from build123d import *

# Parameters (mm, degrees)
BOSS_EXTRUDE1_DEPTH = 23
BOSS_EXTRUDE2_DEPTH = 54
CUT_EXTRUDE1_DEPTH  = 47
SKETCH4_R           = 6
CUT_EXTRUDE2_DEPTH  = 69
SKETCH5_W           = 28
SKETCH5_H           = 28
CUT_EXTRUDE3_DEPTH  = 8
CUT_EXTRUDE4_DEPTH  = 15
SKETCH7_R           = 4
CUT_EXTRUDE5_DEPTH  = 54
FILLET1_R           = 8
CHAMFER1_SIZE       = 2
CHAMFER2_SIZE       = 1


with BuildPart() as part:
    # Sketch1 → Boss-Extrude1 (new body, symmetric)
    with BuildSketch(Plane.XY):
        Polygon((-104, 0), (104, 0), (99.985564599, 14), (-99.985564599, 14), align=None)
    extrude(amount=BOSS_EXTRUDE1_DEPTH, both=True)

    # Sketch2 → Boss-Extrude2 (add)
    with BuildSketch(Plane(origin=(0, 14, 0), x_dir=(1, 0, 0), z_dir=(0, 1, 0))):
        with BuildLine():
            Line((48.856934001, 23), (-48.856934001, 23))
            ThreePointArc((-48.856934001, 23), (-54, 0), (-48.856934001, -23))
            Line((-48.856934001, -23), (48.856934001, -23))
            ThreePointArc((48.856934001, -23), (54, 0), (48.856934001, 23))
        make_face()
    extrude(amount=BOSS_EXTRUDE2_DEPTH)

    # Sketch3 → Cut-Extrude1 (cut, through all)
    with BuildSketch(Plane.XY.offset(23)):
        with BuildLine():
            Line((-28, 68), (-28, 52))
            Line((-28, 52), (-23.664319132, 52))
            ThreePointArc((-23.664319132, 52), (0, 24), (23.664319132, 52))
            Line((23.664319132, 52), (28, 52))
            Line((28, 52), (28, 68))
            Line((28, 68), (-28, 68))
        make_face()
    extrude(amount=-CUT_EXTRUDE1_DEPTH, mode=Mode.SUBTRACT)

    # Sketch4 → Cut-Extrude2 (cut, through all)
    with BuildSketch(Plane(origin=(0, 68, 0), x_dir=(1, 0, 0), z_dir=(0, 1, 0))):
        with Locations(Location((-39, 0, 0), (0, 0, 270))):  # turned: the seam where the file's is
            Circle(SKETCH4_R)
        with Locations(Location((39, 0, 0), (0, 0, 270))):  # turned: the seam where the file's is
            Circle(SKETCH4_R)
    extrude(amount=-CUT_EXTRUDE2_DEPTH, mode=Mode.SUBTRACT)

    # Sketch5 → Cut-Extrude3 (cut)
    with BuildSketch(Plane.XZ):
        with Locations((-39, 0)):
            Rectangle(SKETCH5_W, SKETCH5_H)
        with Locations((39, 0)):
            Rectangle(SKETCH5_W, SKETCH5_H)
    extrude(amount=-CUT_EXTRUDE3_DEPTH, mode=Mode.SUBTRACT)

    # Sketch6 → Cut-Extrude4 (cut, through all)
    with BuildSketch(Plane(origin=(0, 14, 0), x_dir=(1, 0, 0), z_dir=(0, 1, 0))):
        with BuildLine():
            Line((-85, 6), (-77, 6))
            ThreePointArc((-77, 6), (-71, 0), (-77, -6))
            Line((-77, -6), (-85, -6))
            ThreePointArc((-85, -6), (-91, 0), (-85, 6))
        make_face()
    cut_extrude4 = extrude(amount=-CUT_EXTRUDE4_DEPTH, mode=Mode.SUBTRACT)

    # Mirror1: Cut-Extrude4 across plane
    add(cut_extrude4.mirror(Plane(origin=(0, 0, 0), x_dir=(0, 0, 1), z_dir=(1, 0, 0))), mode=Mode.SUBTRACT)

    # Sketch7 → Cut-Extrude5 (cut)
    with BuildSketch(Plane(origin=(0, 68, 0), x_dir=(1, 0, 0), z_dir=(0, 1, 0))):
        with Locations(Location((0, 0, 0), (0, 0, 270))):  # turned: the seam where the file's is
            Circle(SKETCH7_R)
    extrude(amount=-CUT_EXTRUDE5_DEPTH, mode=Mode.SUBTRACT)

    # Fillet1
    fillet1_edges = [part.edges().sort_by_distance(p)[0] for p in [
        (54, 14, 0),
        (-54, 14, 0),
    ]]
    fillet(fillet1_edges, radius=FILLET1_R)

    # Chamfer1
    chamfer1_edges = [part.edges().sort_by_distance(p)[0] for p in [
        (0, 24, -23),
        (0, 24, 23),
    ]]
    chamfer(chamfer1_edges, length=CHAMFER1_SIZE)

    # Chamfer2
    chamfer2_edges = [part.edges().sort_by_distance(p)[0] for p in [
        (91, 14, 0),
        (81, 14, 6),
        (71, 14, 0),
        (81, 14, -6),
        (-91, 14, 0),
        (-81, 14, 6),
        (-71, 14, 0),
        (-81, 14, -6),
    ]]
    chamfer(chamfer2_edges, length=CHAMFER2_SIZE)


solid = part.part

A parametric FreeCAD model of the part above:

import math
import FreeCAD as App
import Part
import Sketcher
Q = App.Units.Quantity


def edges_at(feature, points):
    """Names of the edges that pass closest to the given points."""
    edges = feature.Shape.Edges
    near = lambda p: min(range(len(edges)), key=lambda i: edges[i].distToShape(Part.Vertex(*p))[0])
    return sorted({f"Edge{near(p) + 1}" for p in points})


def add_polygon(sketch, points):
    """Adds a closed chain of lines whose ends are joined by coincident constraints."""
    first, n = sketch.GeometryCount, len(points)
    for a, b in zip(points, points[1:] + points[:1]):
        sketch.addGeometry(Part.LineSegment(App.Vector(*a, 0), App.Vector(*b, 0)), False)
    for i in range(n):
        sketch.addConstraint(Sketcher.Constraint("Coincident", first + i, 2, first + (i + 1) % n, 1))

doc = App.newDocument("Part")
params = doc.addObject("Spreadsheet::Sheet", "Params")
for row, (alias, value) in enumerate([
    ("sketch1_width", "208 mm"),
    ("pad1_length", "46 mm"),
    ("sketch2_radius", "54 mm"),
    ("pad2_length", "54 mm"),
    ("sketch3_radius", "24 mm"),
    ("sketch3_width", "56 mm"),
    ("sketch3_height", "16 mm"),
    ("sketch4_diameter", "12 mm"),
    ("sketch5_width", "28 mm"),
    ("pocket3_length", "8 mm"),
    ("sketch6_radius", "6 mm"),
    ("sketch6_width", "8 mm"),
    ("sketch7_diameter", "8 mm"),
    ("pocket5_length", "54 mm"),
    ("fillet_radius", "8 mm"),
    ("chamfer_size", "2 mm"),
    ("chamfer2_size", "1 mm"),
], start=1):
    params.set(f"A{row}", alias)
    params.set(f"B{row}", "=" + value)
    params.setAlias(f"B{row}", alias)

body = doc.addObject("PartDesign::Body", "Body")

sketch1 = body.newObject("Sketcher::SketchObject", "Sketch")
sketch1.AttachmentSupport = (doc.getObject("XY_Plane"), [""])
sketch1.MapMode = "FlatFace"
add_polygon(sketch1, [(-104, 0), (104, 0), (100, 14), (-100, 14)])
sketch1.addConstraint(Sketcher.Constraint("Horizontal", 0))
sketch1.addConstraint(Sketcher.Constraint("Horizontal", 2))
sketch1.addConstraint(Sketcher.Constraint("Symmetric", 0, 2, 3, 2, -1, 1))
sketch1.addConstraint(Sketcher.Constraint("Equal", 1, 3))
sketch1.addConstraint(Sketcher.Constraint("DistanceX", 0, 1, 0, 2, Q("208 mm")))
sketch1.addConstraint(Sketcher.Constraint("Angle", 1, Q("106 deg")))
sketch1.addConstraint(Sketcher.Constraint("DistanceY", -1, 1, 1, 2, Q("14 mm")))
sketch1.setExpression("Constraints[8]", "Params.sketch1_width")
pad1 = body.newObject("PartDesign::Pad", "Pad")
pad1.Profile = sketch1
pad1.setExpression("Length", "Params.pad1_length")
pad1.Midplane = True

sketch2 = body.newObject("Sketcher::SketchObject", "Sketch001")
sketch2.AttachmentSupport = (doc.getObject("XZ_Plane"), [""])
sketch2.MapMode = "FlatFace"
sketch2.AttachmentOffset = App.Placement(App.Vector(0, 0, -14), App.Rotation())
sketch2.addGeometry(Part.LineSegment(App.Vector(49, -23, 0), App.Vector(-49, -23, 0)), False)
sketch2.addGeometry(Part.ArcOfCircle(Part.Circle(App.Vector(0, 0, 0), App.Vector(0, 0, 1), 54), math.radians(155), math.radians(205)), False)
sketch2.addGeometry(Part.LineSegment(App.Vector(-49, 23, 0), App.Vector(49, 23, 0)), False)
sketch2.addGeometry(Part.ArcOfCircle(Part.Circle(App.Vector(0, 0, 0), App.Vector(0, 0, 1), 54), math.radians(-25), math.radians(25)), False)
sketch2.addConstraint(Sketcher.Constraint("Coincident", 0, 2, 1, 2))
sketch2.addConstraint(Sketcher.Constraint("Coincident", 1, 1, 2, 1))
sketch2.addConstraint(Sketcher.Constraint("Coincident", 2, 2, 3, 2))
sketch2.addConstraint(Sketcher.Constraint("Coincident", 3, 1, 0, 1))
sketch2.addConstraint(Sketcher.Constraint("Horizontal", 0))
sketch2.addConstraint(Sketcher.Constraint("Horizontal", 2))
sketch2.addConstraint(Sketcher.Constraint("Coincident", 1, 3, -1, 1))
sketch2.addConstraint(Sketcher.Constraint("Coincident", 3, 3, -1, 1))
sketch2.addConstraint(Sketcher.Constraint("Equal", 1, 3))
sketch2.addConstraint(Sketcher.Constraint("Vertical", 0, 2, 1, 1))
sketch2.addConstraint(Sketcher.Constraint("Radius", 1, Q("54 mm")))
sketch2.addConstraint(Sketcher.Constraint("DistanceY", 0, 2, -1, 1, Q("23 mm")))
sketch2.setExpression("Constraints[10]", "Params.sketch2_radius")
pad2 = body.newObject("PartDesign::Pad", "Pad001")
pad2.Profile = sketch2
pad2.setExpression("Length", "Params.pad2_length")
pad2.Reversed = True

sketch3 = body.newObject("Sketcher::SketchObject", "Sketch002")
sketch3.AttachmentSupport = (doc.getObject("XY_Plane"), [""])
sketch3.MapMode = "FlatFace"
sketch3.AttachmentOffset = App.Placement(App.Vector(0, 0, 23), App.Rotation())
sketch3.addGeometry(Part.LineSegment(App.Vector(-28, 68, 0), App.Vector(-28, 52, 0)), False)
sketch3.addGeometry(Part.LineSegment(App.Vector(-28, 52, 0), App.Vector(-23.7, 52, 0)), False)
sketch3.addGeometry(Part.ArcOfCircle(Part.Circle(App.Vector(0, 48, 0), App.Vector(0, 0, 1), 24), math.radians(170), math.radians(370)), False)
sketch3.addGeometry(Part.LineSegment(App.Vector(23.7, 52, 0), App.Vector(28, 52, 0)), False)
sketch3.addGeometry(Part.LineSegment(App.Vector(28, 52, 0), App.Vector(28, 68, 0)), False)
sketch3.addGeometry(Part.LineSegment(App.Vector(28, 68, 0), App.Vector(-28, 68, 0)), False)
sketch3.addConstraint(Sketcher.Constraint("Coincident", 0, 2, 1, 1))
sketch3.addConstraint(Sketcher.Constraint("Coincident", 1, 2, 2, 1))
sketch3.addConstraint(Sketcher.Constraint("Coincident", 2, 2, 3, 1))
sketch3.addConstraint(Sketcher.Constraint("Coincident", 3, 2, 4, 1))
sketch3.addConstraint(Sketcher.Constraint("Coincident", 4, 2, 5, 1))
sketch3.addConstraint(Sketcher.Constraint("Coincident", 5, 2, 0, 1))
sketch3.addConstraint(Sketcher.Constraint("Vertical", 0))
sketch3.addConstraint(Sketcher.Constraint("Horizontal", 1))
sketch3.addConstraint(Sketcher.Constraint("Horizontal", 3))
sketch3.addConstraint(Sketcher.Constraint("Vertical", 4))
sketch3.addConstraint(Sketcher.Constraint("Horizontal", 5))
sketch3.addConstraint(Sketcher.Constraint("Symmetric", 1, 2, 2, 2, -2))
sketch3.addConstraint(Sketcher.Constraint("Equal", 1, 3))
sketch3.addConstraint(Sketcher.Constraint("Radius", 2, Q("24 mm")))
sketch3.addConstraint(Sketcher.Constraint("DistanceX", 5, 2, 5, 1, Q("56 mm")))
sketch3.addConstraint(Sketcher.Constraint("DistanceY", 0, 2, 0, 1, Q("16 mm")))
sketch3.addConstraint(Sketcher.Constraint("DistanceY", -1, 1, 2, 3, Q("48 mm")))
sketch3.addConstraint(Sketcher.Constraint("DistanceY", -1, 1, 0, 2, Q("52 mm")))
sketch3.setExpression("Constraints[13]", "Params.sketch3_radius")
sketch3.setExpression("Constraints[14]", "Params.sketch3_width")
sketch3.setExpression("Constraints[15]", "Params.sketch3_height")
pocket1 = body.newObject("PartDesign::Pocket", "Pocket")
pocket1.Profile = sketch3
pocket1.Type = "ThroughAll"

sketch4 = body.newObject("Sketcher::SketchObject", "Sketch003")
sketch4.AttachmentSupport = (doc.getObject("XZ_Plane"), [""])
sketch4.MapMode = "FlatFace"
sketch4.AttachmentOffset = App.Placement(App.Vector(0, 0, -68), App.Rotation())
sketch4.addGeometry(Part.Circle(App.Vector(-39, 0, 0), App.Vector(0, 0, 1), 6), False)
sketch4.addGeometry(Part.Circle(App.Vector(39, 0, 0), App.Vector(0, 0, 1), 6), False)
sketch4.addConstraint(Sketcher.Constraint("Equal", 0, 1))
sketch4.addConstraint(Sketcher.Constraint("Symmetric", 0, 3, 1, 3, -1, 1))
sketch4.addConstraint(Sketcher.Constraint("PointOnObject", 0, 3, -1))
sketch4.addConstraint(Sketcher.Constraint("Diameter", 0, Q("12 mm")))
sketch4.addConstraint(Sketcher.Constraint("DistanceX", 0, 3, -1, 1, Q("39 mm")))
sketch4.setExpression("Constraints[3]", "Params.sketch4_diameter")
pocket2 = body.newObject("PartDesign::Pocket", "Pocket001")
pocket2.Profile = sketch4
pocket2.Type = "ThroughAll"
pocket2.Reversed = True

sketch5 = body.newObject("Sketcher::SketchObject", "Sketch004")
sketch5.AttachmentSupport = (doc.getObject("XZ_Plane"), [""])
sketch5.MapMode = "FlatFace"
add_polygon(sketch5, [(-53, 14), (-53, -14), (-25, -14), (-25, 14)])
add_polygon(sketch5, [(25, 14), (25, -14), (53, -14), (53, 14)])
sketch5.addConstraint(Sketcher.Constraint("Vertical", 0))
sketch5.addConstraint(Sketcher.Constraint("Horizontal", 1))
sketch5.addConstraint(Sketcher.Constraint("Vertical", 2))
sketch5.addConstraint(Sketcher.Constraint("Horizontal", 3))
sketch5.addConstraint(Sketcher.Constraint("Vertical", 4))
sketch5.addConstraint(Sketcher.Constraint("Horizontal", 5))
sketch5.addConstraint(Sketcher.Constraint("Vertical", 6))
sketch5.addConstraint(Sketcher.Constraint("Horizontal", 7))
sketch5.addConstraint(Sketcher.Constraint("Symmetric", 2, 2, 4, 2, -1, 1))
sketch5.addConstraint(Sketcher.Constraint("Symmetric", 0, 2, 6, 2, -1, 1))
sketch5.addConstraint(Sketcher.Constraint("Horizontal", 1, 2, 4, 2))
sketch5.addConstraint(Sketcher.Constraint("Equal", 7, 0))
sketch5.addConstraint(Sketcher.Constraint("DistanceX", 1, 1, 1, 2, Q("28 mm")))
sketch5.addConstraint(Sketcher.Constraint("DistanceX", 0, 2, -1, 1, Q("53 mm")))
sketch5.setExpression("Constraints[20]", "Params.sketch5_width")
pocket3 = body.newObject("PartDesign::Pocket", "Pocket002")
pocket3.Profile = sketch5
pocket3.setExpression("Length", "Params.pocket3_length")

sketch6 = body.newObject("Sketcher::SketchObject", "Sketch005")
sketch6.AttachmentSupport = (doc.getObject("XZ_Plane"), [""])
sketch6.MapMode = "FlatFace"
sketch6.AttachmentOffset = App.Placement(App.Vector(0, 0, -14), App.Rotation())
sketch6.addGeometry(Part.LineSegment(App.Vector(-77, -6, 0), App.Vector(-85, -6, 0)), False)
sketch6.addGeometry(Part.ArcOfCircle(Part.Circle(App.Vector(-85, 0, 0), App.Vector(0, 0, 1), 6), math.radians(90), math.radians(270)), False)
sketch6.addGeometry(Part.LineSegment(App.Vector(-85, 6, 0), App.Vector(-77, 6, 0)), False)
sketch6.addGeometry(Part.ArcOfCircle(Part.Circle(App.Vector(-77, 0, 0), App.Vector(0, 0, 1), 6), math.radians(-90), math.radians(90)), False)
sketch6.addConstraint(Sketcher.Constraint("Tangent", 0, 2, 1, 2))
sketch6.addConstraint(Sketcher.Constraint("Tangent", 1, 1, 2, 1))
sketch6.addConstraint(Sketcher.Constraint("Tangent", 2, 2, 3, 2))
sketch6.addConstraint(Sketcher.Constraint("Tangent", 3, 1, 0, 1))
sketch6.addConstraint(Sketcher.Constraint("Horizontal", 0))
sketch6.addConstraint(Sketcher.Constraint("Horizontal", 2))
sketch6.addConstraint(Sketcher.Constraint("PointOnObject", 1, 3, -1))
sketch6.addConstraint(Sketcher.Constraint("Radius", 1, Q("6 mm")))
sketch6.addConstraint(Sketcher.Constraint("DistanceX", 0, 2, 0, 1, Q("8 mm")))
sketch6.addConstraint(Sketcher.Constraint("DistanceX", 1, 3, -1, 1, Q("85 mm")))
sketch6.setExpression("Constraints[7]", "Params.sketch6_radius")
sketch6.setExpression("Constraints[8]", "Params.sketch6_width")
pocket4 = body.newObject("PartDesign::Pocket", "Pocket003")
pocket4.Profile = sketch6
pocket4.Type = "ThroughAll"
pocket4.Reversed = True
doc.recompute()

mirrored = body.newObject("PartDesign::Mirrored", "Mirrored")
mirrored.Originals = [pocket4]
mirrored.MirrorPlane = (doc.getObject("YZ_Plane"), [""])
body.Tip = mirrored

sketch7 = body.newObject("Sketcher::SketchObject", "Sketch006")
sketch7.AttachmentSupport = (doc.getObject("XZ_Plane"), [""])
sketch7.MapMode = "FlatFace"
sketch7.AttachmentOffset = App.Placement(App.Vector(0, 0, -68), App.Rotation())
sketch7.addGeometry(Part.Circle(App.Vector(0, 0, 0), App.Vector(0, 0, 1), 4), False)
sketch7.addConstraint(Sketcher.Constraint("Coincident", 0, 3, -1, 1))
sketch7.addConstraint(Sketcher.Constraint("Diameter", 0, Q("8 mm")))
sketch7.setExpression("Constraints[1]", "Params.sketch7_diameter")
pocket5 = body.newObject("PartDesign::Pocket", "Pocket004")
pocket5.Profile = sketch7
pocket5.setExpression("Length", "Params.pocket5_length")
pocket5.Reversed = True
doc.recompute()

fillet = body.newObject("PartDesign::Fillet", "Fillet")
fillet.Base = (pocket5, edges_at(pocket5, [(54, 14, 0), (-54, 14, 0)]))
fillet.setExpression("Radius", "Params.fillet_radius")
doc.recompute()

chamfer = body.newObject("PartDesign::Chamfer", "Chamfer")
chamfer.Base = (fillet, edges_at(fillet, [(0, 24, -23), (0, 24, 23)]))
chamfer.setExpression("Size", "Params.chamfer_size")
doc.recompute()

chamfer2 = body.newObject("PartDesign::Chamfer", "Chamfer001")
chamfer2.Base = (chamfer, edges_at(chamfer, [
    (91, 14, 0),
    (81, 14, 6),
    (71, 14, 0),
    (81, 14, -6),
    (-91, 14, 0),
    (-81, 14, 6),
    (-71, 14, 0),
    (-81, 14, -6),
]))
chamfer2.setExpression("Size", "Params.chamfer2_size")

doc.recompute()
